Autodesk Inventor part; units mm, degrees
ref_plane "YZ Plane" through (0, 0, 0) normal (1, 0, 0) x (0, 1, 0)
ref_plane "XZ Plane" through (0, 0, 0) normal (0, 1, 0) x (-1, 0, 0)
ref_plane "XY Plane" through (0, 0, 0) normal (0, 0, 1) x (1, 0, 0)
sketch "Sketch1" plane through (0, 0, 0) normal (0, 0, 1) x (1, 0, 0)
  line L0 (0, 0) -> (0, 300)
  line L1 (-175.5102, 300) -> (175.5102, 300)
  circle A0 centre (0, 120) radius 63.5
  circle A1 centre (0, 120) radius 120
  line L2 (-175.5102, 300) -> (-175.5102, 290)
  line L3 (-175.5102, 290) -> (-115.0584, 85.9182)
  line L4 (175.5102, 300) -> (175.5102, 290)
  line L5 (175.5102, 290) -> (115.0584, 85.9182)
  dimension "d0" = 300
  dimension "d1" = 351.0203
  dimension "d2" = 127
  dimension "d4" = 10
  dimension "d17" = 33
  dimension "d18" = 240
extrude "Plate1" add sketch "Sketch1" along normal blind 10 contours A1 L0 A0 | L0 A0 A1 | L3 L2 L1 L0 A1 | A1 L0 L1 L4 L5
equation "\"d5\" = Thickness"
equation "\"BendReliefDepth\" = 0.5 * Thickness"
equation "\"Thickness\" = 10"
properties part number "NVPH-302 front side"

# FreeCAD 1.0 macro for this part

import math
import FreeCAD as App
import Part
import Sketcher

V = App.Vector
Q = App.Units.Quantity

doc = App.newDocument("Part")
body = doc.addObject("PartDesign::Body", "Body")

# Sketch on XY plane
sketch1 = body.newObject("Sketcher::SketchObject", "Sketch")
sketch1.AttachmentSupport = (doc.getObject("XY_Plane"), [""])
sketch1.MapMode = "FlatFace"
sketch1.addGeometry([
    Part.ArcOfCircle(Part.Circle(V(0, 120, 0), V(0, 0, 1), 120), math.radians(-164), math.radians(-16)),  # 0
    Part.LineSegment(V(115, 86, 0), V(176, 290, 0)),  # 1
    Part.LineSegment(V(176, 290, 0), V(176, 300, 0)),  # 2
    Part.LineSegment(V(176, 300, 0), V(-176, 300, 0)),  # 3
    Part.LineSegment(V(-176, 300, 0), V(-176, 290, 0)),  # 4
    Part.LineSegment(V(-176, 290, 0), V(-115, 86, 0)),  # 5
    Part.Circle(V(0, 120, 0), V(0, 0, 1), 64),  # 6
], False)
sketch1.addConstraint([
    Sketcher.Constraint("Tangent", 0, 2, 1, 1),
    Sketcher.Constraint("Coincident", 1, 2, 2, 1),
    Sketcher.Constraint("Coincident", 2, 2, 3, 1),
    Sketcher.Constraint("Coincident", 3, 2, 4, 1),
    Sketcher.Constraint("Coincident", 4, 2, 5, 1),
    Sketcher.Constraint("Tangent", 5, 2, 0, 1),
    Sketcher.Constraint("Vertical", 2),
    Sketcher.Constraint("Horizontal", 3),
    Sketcher.Constraint("Vertical", 4),
    Sketcher.Constraint("Coincident", 6, 3, 0, 3),
    Sketcher.Constraint("Symmetric", 1, 2, 4, 2, -2),
    Sketcher.Constraint("PointOnObject", 0, 3, -2),
    Sketcher.Constraint("Diameter", 6, Q("127 mm")),
    Sketcher.Constraint("Radius", 0, Q("120 mm")),
    Sketcher.Constraint("DistanceY", 2, 1, 2, 2, Q("10 mm")),
    Sketcher.Constraint("DistanceY", -1, 1, 2, 2, Q("300 mm")),
    Sketcher.Constraint("DistanceX", 3, 2, 3, 1, Q("351.0204 mm")),
    Sketcher.Constraint("DistanceY", -1, 1, 0, 3, Q("120 mm")),
])
pad1 = body.newObject("PartDesign::Pad", "Pad")
pad1.Profile = sketch1
pad1.Length = 10

doc.recompute()
